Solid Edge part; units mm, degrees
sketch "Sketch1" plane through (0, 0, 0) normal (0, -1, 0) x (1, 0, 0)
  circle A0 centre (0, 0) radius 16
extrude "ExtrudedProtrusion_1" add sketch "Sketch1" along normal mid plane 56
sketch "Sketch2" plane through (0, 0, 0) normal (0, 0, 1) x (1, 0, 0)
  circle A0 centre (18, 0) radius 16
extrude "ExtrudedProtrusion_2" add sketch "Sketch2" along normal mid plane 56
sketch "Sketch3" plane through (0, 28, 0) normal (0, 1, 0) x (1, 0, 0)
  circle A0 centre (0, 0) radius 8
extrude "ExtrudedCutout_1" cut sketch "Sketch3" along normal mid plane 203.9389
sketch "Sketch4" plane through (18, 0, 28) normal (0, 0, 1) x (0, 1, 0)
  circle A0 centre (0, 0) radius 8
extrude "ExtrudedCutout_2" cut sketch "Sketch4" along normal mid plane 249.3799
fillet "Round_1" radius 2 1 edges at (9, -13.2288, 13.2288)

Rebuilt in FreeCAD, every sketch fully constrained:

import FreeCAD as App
import Part
import Sketcher
from FreeCAD import Vector
Q = App.Units.Quantity


def edges_at(feature, points):
    """Names of the edges that pass closest to the given points."""
    edges = feature.Shape.Edges
    near = lambda p: min(range(len(edges)), key=lambda i: edges[i].distToShape(Part.Vertex(*p))[0])
    return sorted({f"Edge{near(p) + 1}" for p in points})

doc = App.newDocument("Part")
body = doc.addObject("PartDesign::Body", "Body")

sketch1 = body.newObject("Sketcher::SketchObject", "Sketch")
sketch1.AttachmentSupport = (doc.getObject("XZ_Plane"), [""])
sketch1.MapMode = "FlatFace"
sketch1.addGeometry(Part.Circle(Vector(0, 0, 0), Vector(0, 0, 1), 16), False)
sketch1.addConstraint(Sketcher.Constraint("Coincident", 0, 3, -1, 1))
sketch1.addConstraint(Sketcher.Constraint("Diameter", 0, Q("32 mm")))
pad1 = body.newObject("PartDesign::Pad", "Pad")
pad1.Profile = sketch1
pad1.Length = 56
pad1.Midplane = True

sketch2 = body.newObject("Sketcher::SketchObject", "Sketch001")
sketch2.AttachmentSupport = (doc.getObject("XY_Plane"), [""])
sketch2.MapMode = "FlatFace"
sketch2.addGeometry(Part.Circle(Vector(18, 0, 0), Vector(0, 0, 1), 16), False)
sketch2.addConstraint(Sketcher.Constraint("PointOnObject", 0, 3, -1))
sketch2.addConstraint(Sketcher.Constraint("Diameter", 0, Q("32 mm")))
sketch2.addConstraint(Sketcher.Constraint("DistanceX", -1, 1, 0, 3, Q("18 mm")))
pad2 = body.newObject("PartDesign::Pad", "Pad001")
pad2.Profile = sketch2
pad2.Length = 56
pad2.Midplane = True

sketch3 = body.newObject("Sketcher::SketchObject", "Sketch002")
sketch3.AttachmentSupport = (doc.getObject("XZ_Plane"), [""])
sketch3.MapMode = "FlatFace"
sketch3.AttachmentOffset = App.Placement(Vector(0, 0, -28), App.Rotation())
sketch3.addGeometry(Part.Circle(Vector(0, 0, 0), Vector(0, 0, 1), 8), False)
sketch3.addConstraint(Sketcher.Constraint("Coincident", 0, 3, -1, 1))
sketch3.addConstraint(Sketcher.Constraint("Diameter", 0, Q("16 mm")))
pocket1 = body.newObject("PartDesign::Pocket", "Pocket")
pocket1.Profile = sketch3
pocket1.Length = 203.9389
pocket1.Midplane = True

sketch4 = body.newObject("Sketcher::SketchObject", "Sketch003")
sketch4.AttachmentSupport = (doc.getObject("XY_Plane"), [""])
sketch4.MapMode = "FlatFace"
sketch4.AttachmentOffset = App.Placement(Vector(0, 0, 28), App.Rotation())
sketch4.addGeometry(Part.Circle(Vector(18, 0, 0), Vector(0, 0, 1), 8), False)
sketch4.addConstraint(Sketcher.Constraint("PointOnObject", 0, 3, -1))
sketch4.addConstraint(Sketcher.Constraint("Diameter", 0, Q("16 mm")))
sketch4.addConstraint(Sketcher.Constraint("DistanceX", -1, 1, 0, 3, Q("18 mm")))
pocket2 = body.newObject("PartDesign::Pocket", "Pocket001")
pocket2.Profile = sketch4
pocket2.Length = 249.3799
pocket2.Midplane = True
doc.recompute()

fillet = body.newObject("PartDesign::Fillet", "Fillet")
fillet.Base = (pocket2, edges_at(pocket2, [(9, -13.229, 13.229)]))
fillet.Radius = 2

doc.recompute()
